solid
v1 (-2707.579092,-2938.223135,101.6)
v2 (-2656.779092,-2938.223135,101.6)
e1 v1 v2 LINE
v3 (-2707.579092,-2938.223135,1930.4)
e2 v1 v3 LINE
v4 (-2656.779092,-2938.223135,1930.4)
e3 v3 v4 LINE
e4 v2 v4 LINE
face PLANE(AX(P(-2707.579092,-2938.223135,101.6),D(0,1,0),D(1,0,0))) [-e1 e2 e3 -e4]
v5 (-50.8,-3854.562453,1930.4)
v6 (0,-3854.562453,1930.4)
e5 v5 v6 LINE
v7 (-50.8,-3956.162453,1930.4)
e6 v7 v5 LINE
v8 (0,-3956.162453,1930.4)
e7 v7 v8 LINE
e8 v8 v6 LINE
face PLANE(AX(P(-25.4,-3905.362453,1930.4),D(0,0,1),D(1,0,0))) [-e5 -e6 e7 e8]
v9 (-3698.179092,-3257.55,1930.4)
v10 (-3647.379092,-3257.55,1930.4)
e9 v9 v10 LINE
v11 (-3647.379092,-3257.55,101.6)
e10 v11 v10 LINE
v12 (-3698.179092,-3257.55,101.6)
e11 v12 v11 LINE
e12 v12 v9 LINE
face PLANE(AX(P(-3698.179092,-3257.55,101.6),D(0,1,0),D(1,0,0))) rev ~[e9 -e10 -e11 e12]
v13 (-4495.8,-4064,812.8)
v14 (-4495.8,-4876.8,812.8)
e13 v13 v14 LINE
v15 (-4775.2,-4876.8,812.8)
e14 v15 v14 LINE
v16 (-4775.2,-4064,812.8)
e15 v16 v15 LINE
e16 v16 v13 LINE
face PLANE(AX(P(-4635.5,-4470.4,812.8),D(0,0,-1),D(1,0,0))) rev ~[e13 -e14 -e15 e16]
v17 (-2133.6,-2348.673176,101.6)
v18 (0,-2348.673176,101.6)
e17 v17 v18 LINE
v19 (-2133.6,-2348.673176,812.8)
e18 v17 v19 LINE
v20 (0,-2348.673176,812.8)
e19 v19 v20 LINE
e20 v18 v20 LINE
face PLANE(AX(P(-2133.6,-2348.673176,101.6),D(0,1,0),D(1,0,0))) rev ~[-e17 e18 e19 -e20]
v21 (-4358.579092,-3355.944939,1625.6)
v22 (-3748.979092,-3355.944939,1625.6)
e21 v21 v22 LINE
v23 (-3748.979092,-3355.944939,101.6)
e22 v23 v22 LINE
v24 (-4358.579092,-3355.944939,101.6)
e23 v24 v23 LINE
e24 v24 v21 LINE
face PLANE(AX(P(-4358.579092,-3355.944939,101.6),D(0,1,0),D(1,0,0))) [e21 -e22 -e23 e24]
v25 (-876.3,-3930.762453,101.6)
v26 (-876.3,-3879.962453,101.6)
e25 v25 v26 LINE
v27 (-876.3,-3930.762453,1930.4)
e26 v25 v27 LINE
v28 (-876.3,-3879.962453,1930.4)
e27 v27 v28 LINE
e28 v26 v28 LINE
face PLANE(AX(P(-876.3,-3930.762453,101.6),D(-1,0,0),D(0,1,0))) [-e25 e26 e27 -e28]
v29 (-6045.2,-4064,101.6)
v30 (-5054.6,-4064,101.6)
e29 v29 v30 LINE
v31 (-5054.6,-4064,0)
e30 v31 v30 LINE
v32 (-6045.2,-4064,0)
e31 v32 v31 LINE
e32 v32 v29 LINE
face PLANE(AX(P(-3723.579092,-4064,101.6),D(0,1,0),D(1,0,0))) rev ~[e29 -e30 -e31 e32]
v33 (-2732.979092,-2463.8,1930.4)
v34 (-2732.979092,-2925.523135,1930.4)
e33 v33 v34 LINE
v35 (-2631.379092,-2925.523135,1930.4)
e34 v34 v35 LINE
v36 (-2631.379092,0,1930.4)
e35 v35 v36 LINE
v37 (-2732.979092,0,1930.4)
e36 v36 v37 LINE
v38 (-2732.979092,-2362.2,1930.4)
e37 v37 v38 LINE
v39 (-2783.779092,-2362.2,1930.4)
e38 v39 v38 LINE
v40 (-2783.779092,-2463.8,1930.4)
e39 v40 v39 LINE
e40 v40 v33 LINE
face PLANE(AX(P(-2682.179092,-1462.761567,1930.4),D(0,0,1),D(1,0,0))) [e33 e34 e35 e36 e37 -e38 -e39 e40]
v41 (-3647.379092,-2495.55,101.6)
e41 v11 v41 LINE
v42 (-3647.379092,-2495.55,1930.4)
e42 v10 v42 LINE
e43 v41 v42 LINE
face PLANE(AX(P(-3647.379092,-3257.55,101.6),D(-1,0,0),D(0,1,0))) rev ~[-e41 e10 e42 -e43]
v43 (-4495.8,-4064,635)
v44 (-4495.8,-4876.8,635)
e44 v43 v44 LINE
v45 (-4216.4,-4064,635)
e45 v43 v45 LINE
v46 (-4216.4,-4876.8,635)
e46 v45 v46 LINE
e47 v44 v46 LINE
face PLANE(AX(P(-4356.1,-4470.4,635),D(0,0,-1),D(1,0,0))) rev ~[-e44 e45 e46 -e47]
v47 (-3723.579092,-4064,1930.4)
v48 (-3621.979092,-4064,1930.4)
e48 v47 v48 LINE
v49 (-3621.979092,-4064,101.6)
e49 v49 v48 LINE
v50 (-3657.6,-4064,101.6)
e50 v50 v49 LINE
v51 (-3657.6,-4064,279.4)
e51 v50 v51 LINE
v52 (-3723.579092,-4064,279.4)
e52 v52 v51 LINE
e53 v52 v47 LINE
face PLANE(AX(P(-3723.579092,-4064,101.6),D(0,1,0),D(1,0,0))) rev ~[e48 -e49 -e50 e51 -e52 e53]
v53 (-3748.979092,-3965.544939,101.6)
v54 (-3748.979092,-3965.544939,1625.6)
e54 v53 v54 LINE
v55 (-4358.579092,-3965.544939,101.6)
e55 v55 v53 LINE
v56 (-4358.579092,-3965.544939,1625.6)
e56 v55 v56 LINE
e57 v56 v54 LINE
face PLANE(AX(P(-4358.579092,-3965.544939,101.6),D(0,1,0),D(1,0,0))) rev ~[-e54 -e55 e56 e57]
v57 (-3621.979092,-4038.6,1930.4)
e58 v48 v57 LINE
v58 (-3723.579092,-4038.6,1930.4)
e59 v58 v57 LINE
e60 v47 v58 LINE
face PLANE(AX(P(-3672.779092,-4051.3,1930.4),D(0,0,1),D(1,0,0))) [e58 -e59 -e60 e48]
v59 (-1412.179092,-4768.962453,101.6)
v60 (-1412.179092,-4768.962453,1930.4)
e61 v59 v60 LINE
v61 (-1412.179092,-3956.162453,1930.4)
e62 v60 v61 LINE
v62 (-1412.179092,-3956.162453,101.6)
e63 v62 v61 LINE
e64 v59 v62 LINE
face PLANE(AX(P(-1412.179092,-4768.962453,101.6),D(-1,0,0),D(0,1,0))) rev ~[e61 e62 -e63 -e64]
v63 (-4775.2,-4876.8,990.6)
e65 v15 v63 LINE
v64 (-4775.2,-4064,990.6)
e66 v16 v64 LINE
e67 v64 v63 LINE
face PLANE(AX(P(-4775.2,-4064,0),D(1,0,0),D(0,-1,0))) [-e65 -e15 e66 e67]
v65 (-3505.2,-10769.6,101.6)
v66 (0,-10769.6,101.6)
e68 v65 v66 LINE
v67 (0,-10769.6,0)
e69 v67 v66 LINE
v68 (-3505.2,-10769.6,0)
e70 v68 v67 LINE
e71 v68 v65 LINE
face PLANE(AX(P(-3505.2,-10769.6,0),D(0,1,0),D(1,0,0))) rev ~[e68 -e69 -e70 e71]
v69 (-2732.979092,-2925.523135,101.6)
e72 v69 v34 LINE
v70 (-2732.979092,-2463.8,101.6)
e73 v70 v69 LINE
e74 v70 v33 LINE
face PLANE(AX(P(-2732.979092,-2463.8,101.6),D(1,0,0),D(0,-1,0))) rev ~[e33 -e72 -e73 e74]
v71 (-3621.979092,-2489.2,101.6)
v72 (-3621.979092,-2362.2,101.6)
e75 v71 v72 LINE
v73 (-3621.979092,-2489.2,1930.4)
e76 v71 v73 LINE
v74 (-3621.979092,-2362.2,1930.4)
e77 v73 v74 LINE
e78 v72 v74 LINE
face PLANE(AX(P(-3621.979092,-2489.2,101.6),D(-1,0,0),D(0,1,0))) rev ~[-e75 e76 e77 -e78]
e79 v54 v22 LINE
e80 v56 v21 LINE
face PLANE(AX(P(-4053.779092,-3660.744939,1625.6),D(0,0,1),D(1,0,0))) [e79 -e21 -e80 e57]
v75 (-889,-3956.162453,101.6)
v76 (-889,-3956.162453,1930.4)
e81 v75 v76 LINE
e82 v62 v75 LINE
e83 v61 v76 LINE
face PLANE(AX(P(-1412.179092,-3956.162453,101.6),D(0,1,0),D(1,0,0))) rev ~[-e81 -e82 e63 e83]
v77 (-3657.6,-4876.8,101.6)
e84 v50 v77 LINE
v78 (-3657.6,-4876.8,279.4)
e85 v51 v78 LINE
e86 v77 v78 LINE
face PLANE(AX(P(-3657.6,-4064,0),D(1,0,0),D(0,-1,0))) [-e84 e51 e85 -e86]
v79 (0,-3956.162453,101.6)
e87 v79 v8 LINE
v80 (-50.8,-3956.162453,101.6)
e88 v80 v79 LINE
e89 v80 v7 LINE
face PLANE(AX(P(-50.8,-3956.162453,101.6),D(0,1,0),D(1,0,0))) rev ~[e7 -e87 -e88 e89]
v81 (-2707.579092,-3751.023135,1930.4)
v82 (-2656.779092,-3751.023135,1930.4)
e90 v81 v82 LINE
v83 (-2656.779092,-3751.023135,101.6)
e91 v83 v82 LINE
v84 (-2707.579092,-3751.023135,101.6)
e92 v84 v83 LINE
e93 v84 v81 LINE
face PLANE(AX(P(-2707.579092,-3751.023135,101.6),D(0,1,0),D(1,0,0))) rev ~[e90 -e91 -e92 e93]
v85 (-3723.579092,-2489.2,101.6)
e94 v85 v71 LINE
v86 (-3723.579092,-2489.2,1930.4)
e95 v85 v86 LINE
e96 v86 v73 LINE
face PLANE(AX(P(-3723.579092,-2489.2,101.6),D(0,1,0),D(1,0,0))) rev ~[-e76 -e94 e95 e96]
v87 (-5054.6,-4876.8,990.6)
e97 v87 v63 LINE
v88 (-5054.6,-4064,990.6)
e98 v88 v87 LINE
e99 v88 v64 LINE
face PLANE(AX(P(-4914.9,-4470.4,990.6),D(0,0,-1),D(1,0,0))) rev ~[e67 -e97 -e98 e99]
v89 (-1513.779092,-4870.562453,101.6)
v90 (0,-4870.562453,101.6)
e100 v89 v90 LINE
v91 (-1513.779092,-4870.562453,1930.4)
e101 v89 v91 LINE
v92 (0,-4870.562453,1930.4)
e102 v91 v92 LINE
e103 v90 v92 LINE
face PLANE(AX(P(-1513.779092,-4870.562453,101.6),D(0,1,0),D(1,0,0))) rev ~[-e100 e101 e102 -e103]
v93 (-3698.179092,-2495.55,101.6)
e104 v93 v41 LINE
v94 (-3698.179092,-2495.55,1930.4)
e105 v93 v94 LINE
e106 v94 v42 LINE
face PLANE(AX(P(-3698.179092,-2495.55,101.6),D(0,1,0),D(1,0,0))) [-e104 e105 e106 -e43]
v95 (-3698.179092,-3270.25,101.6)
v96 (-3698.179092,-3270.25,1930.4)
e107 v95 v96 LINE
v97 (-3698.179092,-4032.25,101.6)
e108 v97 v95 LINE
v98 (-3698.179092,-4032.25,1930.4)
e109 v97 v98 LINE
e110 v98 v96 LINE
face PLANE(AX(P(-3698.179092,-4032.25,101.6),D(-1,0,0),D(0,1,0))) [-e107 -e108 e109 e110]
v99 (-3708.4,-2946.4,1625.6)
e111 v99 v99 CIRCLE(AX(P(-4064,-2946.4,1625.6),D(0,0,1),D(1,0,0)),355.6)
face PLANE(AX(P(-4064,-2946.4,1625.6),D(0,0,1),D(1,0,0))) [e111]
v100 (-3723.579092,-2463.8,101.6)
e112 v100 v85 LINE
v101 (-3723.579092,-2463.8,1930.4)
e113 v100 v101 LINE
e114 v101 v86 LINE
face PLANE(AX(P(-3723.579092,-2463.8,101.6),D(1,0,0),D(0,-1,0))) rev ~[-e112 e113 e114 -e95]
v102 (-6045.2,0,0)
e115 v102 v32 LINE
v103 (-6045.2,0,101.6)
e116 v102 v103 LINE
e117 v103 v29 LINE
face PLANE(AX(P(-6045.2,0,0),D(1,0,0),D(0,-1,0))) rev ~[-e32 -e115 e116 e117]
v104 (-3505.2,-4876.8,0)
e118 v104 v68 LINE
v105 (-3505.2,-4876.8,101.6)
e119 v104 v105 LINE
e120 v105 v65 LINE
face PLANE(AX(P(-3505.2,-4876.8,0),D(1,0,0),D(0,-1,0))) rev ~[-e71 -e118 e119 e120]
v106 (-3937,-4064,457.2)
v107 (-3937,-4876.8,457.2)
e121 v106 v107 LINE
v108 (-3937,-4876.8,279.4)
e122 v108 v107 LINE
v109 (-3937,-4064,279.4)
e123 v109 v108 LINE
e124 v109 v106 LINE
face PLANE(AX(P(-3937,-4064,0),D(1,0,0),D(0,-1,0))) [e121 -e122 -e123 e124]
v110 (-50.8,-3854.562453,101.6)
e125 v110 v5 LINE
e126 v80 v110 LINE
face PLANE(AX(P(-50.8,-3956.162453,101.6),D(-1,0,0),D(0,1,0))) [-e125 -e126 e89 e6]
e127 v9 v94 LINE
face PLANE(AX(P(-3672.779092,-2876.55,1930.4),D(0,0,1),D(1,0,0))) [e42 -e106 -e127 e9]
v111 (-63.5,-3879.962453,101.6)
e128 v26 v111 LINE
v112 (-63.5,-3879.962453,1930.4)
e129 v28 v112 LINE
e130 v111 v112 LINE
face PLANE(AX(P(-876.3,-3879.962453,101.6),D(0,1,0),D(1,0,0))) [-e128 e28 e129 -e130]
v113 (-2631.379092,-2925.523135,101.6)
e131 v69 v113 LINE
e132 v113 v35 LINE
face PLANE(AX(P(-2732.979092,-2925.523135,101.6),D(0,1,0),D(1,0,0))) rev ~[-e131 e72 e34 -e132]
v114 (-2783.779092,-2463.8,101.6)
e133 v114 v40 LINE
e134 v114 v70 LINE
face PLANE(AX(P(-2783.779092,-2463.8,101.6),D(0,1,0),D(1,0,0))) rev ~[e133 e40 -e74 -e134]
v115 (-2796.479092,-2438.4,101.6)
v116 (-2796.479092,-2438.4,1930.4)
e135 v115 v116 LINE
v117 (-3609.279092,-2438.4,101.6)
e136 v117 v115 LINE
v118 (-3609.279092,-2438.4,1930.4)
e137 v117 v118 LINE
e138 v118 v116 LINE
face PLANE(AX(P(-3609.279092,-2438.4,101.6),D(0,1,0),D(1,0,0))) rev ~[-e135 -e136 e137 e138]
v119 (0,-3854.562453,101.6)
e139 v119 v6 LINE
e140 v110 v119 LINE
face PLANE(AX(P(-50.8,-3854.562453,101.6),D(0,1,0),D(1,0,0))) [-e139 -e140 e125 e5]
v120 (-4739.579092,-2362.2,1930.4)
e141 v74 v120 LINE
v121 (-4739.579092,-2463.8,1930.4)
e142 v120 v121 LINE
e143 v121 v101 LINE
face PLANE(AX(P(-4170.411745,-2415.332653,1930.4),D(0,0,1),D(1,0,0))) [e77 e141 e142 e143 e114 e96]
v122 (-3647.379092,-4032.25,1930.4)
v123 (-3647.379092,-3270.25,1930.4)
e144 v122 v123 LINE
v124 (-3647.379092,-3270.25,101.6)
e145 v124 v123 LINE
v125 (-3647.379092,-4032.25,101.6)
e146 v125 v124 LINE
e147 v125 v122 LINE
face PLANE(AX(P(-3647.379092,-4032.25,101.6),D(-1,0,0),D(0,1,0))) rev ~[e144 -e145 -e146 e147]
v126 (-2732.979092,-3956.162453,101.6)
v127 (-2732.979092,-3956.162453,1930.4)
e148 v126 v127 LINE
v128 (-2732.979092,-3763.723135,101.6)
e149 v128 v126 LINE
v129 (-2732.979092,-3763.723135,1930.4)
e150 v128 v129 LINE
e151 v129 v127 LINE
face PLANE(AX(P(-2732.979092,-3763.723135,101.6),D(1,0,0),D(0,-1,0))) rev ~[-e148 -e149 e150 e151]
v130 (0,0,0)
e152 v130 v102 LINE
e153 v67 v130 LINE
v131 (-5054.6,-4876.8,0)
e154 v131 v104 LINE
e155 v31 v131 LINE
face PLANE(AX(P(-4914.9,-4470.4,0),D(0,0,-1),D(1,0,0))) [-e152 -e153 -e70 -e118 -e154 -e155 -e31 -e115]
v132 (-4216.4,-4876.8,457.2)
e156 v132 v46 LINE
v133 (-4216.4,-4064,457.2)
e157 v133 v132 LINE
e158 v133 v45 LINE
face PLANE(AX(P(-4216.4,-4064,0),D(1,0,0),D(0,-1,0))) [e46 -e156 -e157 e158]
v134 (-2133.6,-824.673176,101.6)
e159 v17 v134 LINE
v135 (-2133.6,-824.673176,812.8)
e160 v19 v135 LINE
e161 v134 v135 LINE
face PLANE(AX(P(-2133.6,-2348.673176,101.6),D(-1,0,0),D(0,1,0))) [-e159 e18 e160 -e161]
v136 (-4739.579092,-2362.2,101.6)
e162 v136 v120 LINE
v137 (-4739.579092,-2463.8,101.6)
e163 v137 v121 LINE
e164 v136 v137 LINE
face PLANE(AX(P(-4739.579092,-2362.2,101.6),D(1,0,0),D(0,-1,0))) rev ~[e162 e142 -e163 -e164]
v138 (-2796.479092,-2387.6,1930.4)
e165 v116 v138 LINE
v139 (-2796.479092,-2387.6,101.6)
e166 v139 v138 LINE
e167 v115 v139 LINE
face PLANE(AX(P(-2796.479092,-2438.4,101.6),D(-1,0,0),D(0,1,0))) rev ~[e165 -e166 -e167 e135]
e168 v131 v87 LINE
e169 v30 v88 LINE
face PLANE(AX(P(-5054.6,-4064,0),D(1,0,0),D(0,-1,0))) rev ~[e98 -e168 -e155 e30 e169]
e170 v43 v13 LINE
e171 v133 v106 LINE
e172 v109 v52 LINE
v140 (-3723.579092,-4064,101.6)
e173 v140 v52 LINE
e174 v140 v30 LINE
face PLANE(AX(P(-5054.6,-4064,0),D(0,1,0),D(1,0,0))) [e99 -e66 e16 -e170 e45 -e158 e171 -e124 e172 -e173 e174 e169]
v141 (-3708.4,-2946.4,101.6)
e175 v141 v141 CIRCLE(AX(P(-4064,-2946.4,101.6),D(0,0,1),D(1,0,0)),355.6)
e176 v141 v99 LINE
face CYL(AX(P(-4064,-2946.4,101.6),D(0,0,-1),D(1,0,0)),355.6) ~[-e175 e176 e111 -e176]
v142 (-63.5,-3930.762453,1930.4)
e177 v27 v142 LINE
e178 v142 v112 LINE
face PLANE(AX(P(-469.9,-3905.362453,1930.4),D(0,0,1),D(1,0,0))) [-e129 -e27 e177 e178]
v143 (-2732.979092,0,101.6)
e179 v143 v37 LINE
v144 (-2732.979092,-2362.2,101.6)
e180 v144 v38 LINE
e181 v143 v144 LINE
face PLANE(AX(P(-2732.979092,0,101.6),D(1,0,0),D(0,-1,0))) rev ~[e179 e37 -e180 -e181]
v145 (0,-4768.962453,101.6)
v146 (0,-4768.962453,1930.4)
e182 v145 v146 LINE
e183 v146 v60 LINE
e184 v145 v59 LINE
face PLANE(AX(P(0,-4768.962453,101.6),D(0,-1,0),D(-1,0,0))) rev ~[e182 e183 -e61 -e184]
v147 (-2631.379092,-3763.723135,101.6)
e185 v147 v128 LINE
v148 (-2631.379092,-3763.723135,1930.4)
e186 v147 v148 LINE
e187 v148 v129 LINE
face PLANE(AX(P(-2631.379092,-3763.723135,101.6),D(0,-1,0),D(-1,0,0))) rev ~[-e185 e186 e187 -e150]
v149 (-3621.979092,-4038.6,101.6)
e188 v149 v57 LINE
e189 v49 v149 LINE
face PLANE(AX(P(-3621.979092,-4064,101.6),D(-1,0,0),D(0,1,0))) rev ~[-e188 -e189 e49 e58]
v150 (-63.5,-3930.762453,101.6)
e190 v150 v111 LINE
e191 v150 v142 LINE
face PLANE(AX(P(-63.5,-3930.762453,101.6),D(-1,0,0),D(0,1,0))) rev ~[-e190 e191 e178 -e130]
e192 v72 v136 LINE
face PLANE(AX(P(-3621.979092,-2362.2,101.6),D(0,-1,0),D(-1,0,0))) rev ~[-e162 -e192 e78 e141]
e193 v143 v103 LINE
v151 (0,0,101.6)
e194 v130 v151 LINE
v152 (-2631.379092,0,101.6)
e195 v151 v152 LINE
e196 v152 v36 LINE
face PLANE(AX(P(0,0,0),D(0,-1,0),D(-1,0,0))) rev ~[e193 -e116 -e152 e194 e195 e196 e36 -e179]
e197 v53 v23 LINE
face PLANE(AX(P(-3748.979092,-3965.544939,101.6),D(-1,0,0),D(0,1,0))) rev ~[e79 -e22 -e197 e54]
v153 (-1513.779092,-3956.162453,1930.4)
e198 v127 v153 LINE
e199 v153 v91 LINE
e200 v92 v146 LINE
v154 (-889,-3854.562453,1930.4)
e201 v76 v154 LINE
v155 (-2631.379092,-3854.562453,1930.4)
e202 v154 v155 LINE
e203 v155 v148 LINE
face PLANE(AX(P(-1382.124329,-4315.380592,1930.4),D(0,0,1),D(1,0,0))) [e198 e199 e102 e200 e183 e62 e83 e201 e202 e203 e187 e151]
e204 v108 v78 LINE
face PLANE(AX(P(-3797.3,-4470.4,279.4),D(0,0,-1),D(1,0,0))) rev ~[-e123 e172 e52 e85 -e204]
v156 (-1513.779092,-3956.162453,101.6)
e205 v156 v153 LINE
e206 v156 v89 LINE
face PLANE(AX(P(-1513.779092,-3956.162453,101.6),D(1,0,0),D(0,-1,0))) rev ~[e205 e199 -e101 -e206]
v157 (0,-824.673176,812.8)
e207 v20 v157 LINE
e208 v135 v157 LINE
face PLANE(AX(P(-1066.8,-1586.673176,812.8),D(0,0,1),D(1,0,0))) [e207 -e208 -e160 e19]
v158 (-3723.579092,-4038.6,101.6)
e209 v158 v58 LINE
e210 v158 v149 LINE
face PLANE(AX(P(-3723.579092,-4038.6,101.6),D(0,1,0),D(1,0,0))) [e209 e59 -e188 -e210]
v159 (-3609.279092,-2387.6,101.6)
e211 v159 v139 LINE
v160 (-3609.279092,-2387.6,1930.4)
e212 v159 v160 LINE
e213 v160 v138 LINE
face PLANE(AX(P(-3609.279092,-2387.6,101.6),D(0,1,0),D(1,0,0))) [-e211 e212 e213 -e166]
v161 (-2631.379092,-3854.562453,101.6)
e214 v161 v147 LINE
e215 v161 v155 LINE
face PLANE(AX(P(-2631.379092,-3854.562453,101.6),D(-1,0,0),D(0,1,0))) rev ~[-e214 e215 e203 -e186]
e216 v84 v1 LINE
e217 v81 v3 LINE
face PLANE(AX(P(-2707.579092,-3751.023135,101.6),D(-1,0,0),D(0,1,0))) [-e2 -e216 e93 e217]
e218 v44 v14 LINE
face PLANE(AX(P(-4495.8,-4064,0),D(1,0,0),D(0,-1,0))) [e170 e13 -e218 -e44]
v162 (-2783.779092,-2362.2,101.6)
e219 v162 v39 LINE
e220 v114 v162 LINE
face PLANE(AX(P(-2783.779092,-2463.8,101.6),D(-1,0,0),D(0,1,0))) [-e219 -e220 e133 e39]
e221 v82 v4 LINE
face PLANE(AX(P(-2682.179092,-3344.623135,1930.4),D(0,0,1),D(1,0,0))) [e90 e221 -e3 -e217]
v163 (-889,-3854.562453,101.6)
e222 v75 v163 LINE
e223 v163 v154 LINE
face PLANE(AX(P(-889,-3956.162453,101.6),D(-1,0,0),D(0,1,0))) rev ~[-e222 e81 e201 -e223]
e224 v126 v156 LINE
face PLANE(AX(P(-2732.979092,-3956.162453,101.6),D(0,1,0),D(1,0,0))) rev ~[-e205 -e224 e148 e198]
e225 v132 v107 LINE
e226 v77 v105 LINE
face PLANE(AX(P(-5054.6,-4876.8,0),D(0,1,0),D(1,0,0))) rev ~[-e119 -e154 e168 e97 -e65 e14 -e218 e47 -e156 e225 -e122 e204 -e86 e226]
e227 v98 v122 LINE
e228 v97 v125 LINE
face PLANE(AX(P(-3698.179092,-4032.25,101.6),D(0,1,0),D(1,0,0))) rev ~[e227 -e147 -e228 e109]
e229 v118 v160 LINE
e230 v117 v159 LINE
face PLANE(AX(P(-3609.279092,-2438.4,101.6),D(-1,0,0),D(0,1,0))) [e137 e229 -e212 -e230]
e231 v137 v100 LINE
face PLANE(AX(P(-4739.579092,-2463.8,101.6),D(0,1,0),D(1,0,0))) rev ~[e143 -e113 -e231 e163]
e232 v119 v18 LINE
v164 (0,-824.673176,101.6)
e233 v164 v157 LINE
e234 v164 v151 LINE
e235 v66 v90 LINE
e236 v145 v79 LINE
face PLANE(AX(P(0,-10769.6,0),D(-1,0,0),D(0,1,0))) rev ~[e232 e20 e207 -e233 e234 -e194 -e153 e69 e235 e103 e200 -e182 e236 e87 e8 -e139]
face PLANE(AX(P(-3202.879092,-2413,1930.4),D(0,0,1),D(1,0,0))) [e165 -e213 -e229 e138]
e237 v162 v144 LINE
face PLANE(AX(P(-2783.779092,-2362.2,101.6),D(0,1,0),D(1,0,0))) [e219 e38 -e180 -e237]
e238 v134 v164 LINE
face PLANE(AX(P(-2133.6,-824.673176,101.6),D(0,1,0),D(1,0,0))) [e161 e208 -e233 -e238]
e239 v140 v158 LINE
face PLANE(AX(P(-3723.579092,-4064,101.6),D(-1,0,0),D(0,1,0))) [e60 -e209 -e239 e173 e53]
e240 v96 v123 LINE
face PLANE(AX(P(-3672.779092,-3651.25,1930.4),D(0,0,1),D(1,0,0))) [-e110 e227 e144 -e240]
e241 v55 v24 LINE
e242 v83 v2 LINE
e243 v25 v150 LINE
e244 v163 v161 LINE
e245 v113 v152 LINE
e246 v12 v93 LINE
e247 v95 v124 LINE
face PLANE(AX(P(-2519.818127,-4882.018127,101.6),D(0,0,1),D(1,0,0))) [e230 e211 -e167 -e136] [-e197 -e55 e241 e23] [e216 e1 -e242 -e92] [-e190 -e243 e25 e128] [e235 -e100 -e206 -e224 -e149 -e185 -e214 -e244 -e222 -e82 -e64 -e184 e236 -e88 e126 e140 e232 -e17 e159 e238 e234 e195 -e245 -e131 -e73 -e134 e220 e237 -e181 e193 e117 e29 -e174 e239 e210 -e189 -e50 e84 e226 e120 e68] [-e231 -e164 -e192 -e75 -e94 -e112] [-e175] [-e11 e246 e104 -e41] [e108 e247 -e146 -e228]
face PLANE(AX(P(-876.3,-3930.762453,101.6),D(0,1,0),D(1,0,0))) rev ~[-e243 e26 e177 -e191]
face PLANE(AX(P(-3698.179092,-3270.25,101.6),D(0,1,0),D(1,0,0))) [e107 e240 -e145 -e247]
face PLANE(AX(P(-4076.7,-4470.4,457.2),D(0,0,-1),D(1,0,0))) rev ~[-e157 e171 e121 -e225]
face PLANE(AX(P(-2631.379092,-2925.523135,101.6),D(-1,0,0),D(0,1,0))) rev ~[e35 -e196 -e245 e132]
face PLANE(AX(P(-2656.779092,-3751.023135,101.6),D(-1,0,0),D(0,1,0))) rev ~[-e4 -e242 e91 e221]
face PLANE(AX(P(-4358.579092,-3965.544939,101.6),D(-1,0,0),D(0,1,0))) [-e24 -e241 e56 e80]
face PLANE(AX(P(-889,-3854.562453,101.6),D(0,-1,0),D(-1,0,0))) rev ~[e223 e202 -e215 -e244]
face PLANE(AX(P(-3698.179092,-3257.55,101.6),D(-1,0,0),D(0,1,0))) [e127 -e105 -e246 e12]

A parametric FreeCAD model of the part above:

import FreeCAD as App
import Part
import Sketcher

V = App.Vector
Q = App.Units.Quantity

doc = App.newDocument("Part")
body = doc.addObject("PartDesign::Body", "Body")

sketch1 = body.newObject("Sketcher::SketchObject", "Sketch")
sketch1.AttachmentSupport = (doc.getObject("XY_Plane"), [""])
sketch1.MapMode = "FlatFace"
sketch1.addGeometry(Part.LineSegment(V(0, 0, 0), V(-6045, 0, 0)), False)
sketch1.addGeometry(Part.LineSegment(V(-6045, 0, 0), V(-6045, -4064, 0)), False)
sketch1.addGeometry(Part.LineSegment(V(-6045, -4064, 0), V(-3658, -4064, 0)), False)
sketch1.addGeometry(Part.LineSegment(V(-3658, -4064, 0), V(-3658, -4877, 0)), False)
sketch1.addGeometry(Part.LineSegment(V(-3658, -4877, 0), V(-3505, -4877, 0)), False)
sketch1.addGeometry(Part.LineSegment(V(-3505, -4877, 0), V(-3505, -10770, 0)), False)
sketch1.addGeometry(Part.LineSegment(V(-3505, -10770, 0), V(0, -10770, 0)), False)
sketch1.addGeometry(Part.LineSegment(V(0, -10770, 0), V(0, 0, 0)), False)
sketch1.addConstraint(Sketcher.Constraint("Coincident", 0, 2, 1, 1))
sketch1.addConstraint(Sketcher.Constraint("Coincident", 1, 2, 2, 1))
sketch1.addConstraint(Sketcher.Constraint("Coincident", 2, 2, 3, 1))
sketch1.addConstraint(Sketcher.Constraint("Coincident", 3, 2, 4, 1))
sketch1.addConstraint(Sketcher.Constraint("Coincident", 4, 2, 5, 1))
sketch1.addConstraint(Sketcher.Constraint("Coincident", 5, 2, 6, 1))
sketch1.addConstraint(Sketcher.Constraint("Coincident", 6, 2, 7, 1))
sketch1.addConstraint(Sketcher.Constraint("Coincident", 7, 2, 0, 1))
sketch1.addConstraint(Sketcher.Constraint("Horizontal", 0))
sketch1.addConstraint(Sketcher.Constraint("Vertical", 1))
sketch1.addConstraint(Sketcher.Constraint("Horizontal", 2))
sketch1.addConstraint(Sketcher.Constraint("Vertical", 3))
sketch1.addConstraint(Sketcher.Constraint("Horizontal", 4))
sketch1.addConstraint(Sketcher.Constraint("Vertical", 5))
sketch1.addConstraint(Sketcher.Constraint("Horizontal", 6))
sketch1.addConstraint(Sketcher.Constraint("Vertical", 7))
sketch1.addConstraint(Sketcher.Constraint("Coincident", 7, 2, -1, 1))
sketch1.addConstraint(Sketcher.Constraint("DistanceX", 0, 2, 0, 1, Q("238 in")))
sketch1.addConstraint(Sketcher.Constraint("DistanceX", 2, 1, 2, 2, Q("94 in")))
sketch1.addConstraint(Sketcher.Constraint("DistanceX", 4, 1, 4, 2, Q("6 in")))
sketch1.addConstraint(Sketcher.Constraint("DistanceY", 1, 2, 1, 1, Q("160 in")))
sketch1.addConstraint(Sketcher.Constraint("DistanceY", 3, 2, 3, 1, Q("32 in")))
sketch1.addConstraint(Sketcher.Constraint("DistanceY", 5, 2, 5, 1, Q("232 in")))
pad1 = body.newObject("PartDesign::Pad", "Pad")
pad1.Profile = sketch1
pad1.Length = Q("4 in")

sketch2 = body.newObject("Sketcher::SketchObject", "Sketch001")
sketch2.AttachmentSupport = (doc.getObject("XY_Plane"), [""])
sketch2.MapMode = "FlatFace"
sketch2.AttachmentOffset = App.Placement(V(0, 0, 4 * 25.4), App.Rotation())
sketch2.addGeometry(Part.Circle(V(-4064, -2946, 0), V(0, 0, 1), 356), False)
sketch2.addGeometry(Part.LineSegment(V(-4359, -3356, 0), V(-4359, -3966, 0)), False)
sketch2.addGeometry(Part.LineSegment(V(-4359, -3966, 0), V(-3749, -3966, 0)), False)
sketch2.addGeometry(Part.LineSegment(V(-3749, -3966, 0), V(-3749, -3356, 0)), False)
sketch2.addGeometry(Part.LineSegment(V(-3749, -3356, 0), V(-4359, -3356, 0)), False)
sketch2.addConstraint(Sketcher.Constraint("Coincident", 1, 2, 2, 1))
sketch2.addConstraint(Sketcher.Constraint("Coincident", 2, 2, 3, 1))
sketch2.addConstraint(Sketcher.Constraint("Coincident", 3, 2, 4, 1))
sketch2.addConstraint(Sketcher.Constraint("Coincident", 4, 2, 1, 1))
sketch2.addConstraint(Sketcher.Constraint("Vertical", 1))
sketch2.addConstraint(Sketcher.Constraint("Horizontal", 2))
sketch2.addConstraint(Sketcher.Constraint("Vertical", 3))
sketch2.addConstraint(Sketcher.Constraint("Horizontal", 4))
sketch2.addConstraint(Sketcher.Constraint("Equal", 4, 1))
sketch2.addConstraint(Sketcher.Constraint("Diameter", 0, Q("28 in")))
sketch2.addConstraint(Sketcher.Constraint("DistanceX", 2, 1, 2, 2, Q("24 in")))
sketch2.addConstraint(Sketcher.Constraint("DistanceX", 0, 3, -1, 1, Q("160 in")))
sketch2.addConstraint(Sketcher.Constraint("DistanceY", 0, 3, -1, 1, Q("116 in")))
sketch2.addConstraint(Sketcher.Constraint("DistanceX", 1, 2, -1, 1, Q("4358.579092 mm")))
sketch2.addConstraint(Sketcher.Constraint("DistanceY", 1, 2, -1, 1, Q("3965.544939 mm")))
pad2 = body.newObject("PartDesign::Pad", "Pad001")
pad2.Profile = sketch2
pad2.Length = Q("60 in")

sketch3 = body.newObject("Sketcher::SketchObject", "Sketch002")
sketch3.AttachmentSupport = (doc.getObject("XY_Plane"), [""])
sketch3.MapMode = "FlatFace"
sketch3.AttachmentOffset = App.Placement(V(0, 0, 4 * 25.4), App.Rotation())
sketch3.addGeometry(Part.LineSegment(V(-3724, -4039, 0), V(-3724, -4064, 0)), False)
sketch3.addGeometry(Part.LineSegment(V(-3724, -4064, 0), V(-3622, -4064, 0)), False)
sketch3.addGeometry(Part.LineSegment(V(-3622, -4064, 0), V(-3622, -4039, 0)), False)
sketch3.addGeometry(Part.LineSegment(V(-3622, -4039, 0), V(-3724, -4039, 0)), False)
sketch3.addGeometry(Part.LineSegment(V(-3698, -3270, 0), V(-3698, -4032, 0)), False)
sketch3.addGeometry(Part.LineSegment(V(-3698, -4032, 0), V(-3647, -4032, 0)), False)
sketch3.addGeometry(Part.LineSegment(V(-3647, -4032, 0), V(-3647, -3270, 0)), False)
sketch3.addGeometry(Part.LineSegment(V(-3647, -3270, 0), V(-3698, -3270, 0)), False)
sketch3.addGeometry(Part.LineSegment(V(-3698, -2496, 0), V(-3698, -3258, 0)), False)
sketch3.addGeometry(Part.LineSegment(V(-3698, -3258, 0), V(-3647, -3258, 0)), False)
sketch3.addGeometry(Part.LineSegment(V(-3647, -3258, 0), V(-3647, -2496, 0)), False)
sketch3.addGeometry(Part.LineSegment(V(-3647, -2496, 0), V(-3698, -2496, 0)), False)
sketch3.addGeometry(Part.LineSegment(V(-3724, -2464, 0), V(-3724, -2489, 0)), False)
sketch3.addGeometry(Part.LineSegment(V(-3724, -2489, 0), V(-3622, -2489, 0)), False)
sketch3.addGeometry(Part.LineSegment(V(-3622, -2489, 0), V(-3622, -2362, 0)), False)
sketch3.addGeometry(Part.LineSegment(V(-3622, -2362, 0), V(-4740, -2362, 0)), False)
sketch3.addGeometry(Part.LineSegment(V(-4740, -2362, 0), V(-4740, -2464, 0)), False)
sketch3.addGeometry(Part.LineSegment(V(-4740, -2464, 0), V(-3724, -2464, 0)), False)
sketch3.addGeometry(Part.LineSegment(V(-2631, -2926, 0), V(-2631, 0, 0)), False)
sketch3.addGeometry(Part.LineSegment(V(-2631, 0, 0), V(-2733, 0, 0)), False)
sketch3.addGeometry(Part.LineSegment(V(-2733, 0, 0), V(-2733, -2362, 0)), False)
sketch3.addGeometry(Part.LineSegment(V(-2733, -2362, 0), V(-2784, -2362, 0)), False)
sketch3.addGeometry(Part.LineSegment(V(-2784, -2362, 0), V(-2784, -2464, 0)), False)
sketch3.addGeometry(Part.LineSegment(V(-2784, -2464, 0), V(-2733, -2464, 0)), False)
sketch3.addGeometry(Part.LineSegment(V(-2733, -2464, 0), V(-2733, -2926, 0)), False)
sketch3.addGeometry(Part.LineSegment(V(-2733, -2926, 0), V(-2631, -2926, 0)), False)
sketch3.addGeometry(Part.LineSegment(V(-889, -3855, 0), V(-2631, -3855, 0)), False)
sketch3.addGeometry(Part.LineSegment(V(-2631, -3855, 0), V(-2631, -3764, 0)), False)
sketch3.addGeometry(Part.LineSegment(V(-2631, -3764, 0), V(-2733, -3764, 0)), False)
sketch3.addGeometry(Part.LineSegment(V(-2733, -3764, 0), V(-2733, -3956, 0)), False)
sketch3.addGeometry(Part.LineSegment(V(-2733, -3956, 0), V(-1514, -3956, 0)), False)
sketch3.addGeometry(Part.LineSegment(V(-1514, -3956, 0), V(-1514, -4871, 0)), False)
sketch3.addGeometry(Part.LineSegment(V(-1514, -4871, 0), V(0, -4871, 0)), False)
sketch3.addGeometry(Part.LineSegment(V(0, -4871, 0), V(0, -4769, 0)), False)
sketch3.addGeometry(Part.LineSegment(V(0, -4769, 0), V(-1412, -4769, 0)), False)
sketch3.addGeometry(Part.LineSegment(V(-1412, -4769, 0), V(-1412, -3956, 0)), False)
sketch3.addGeometry(Part.LineSegment(V(-1412, -3956, 0), V(-889, -3956, 0)), False)
sketch3.addGeometry(Part.LineSegment(V(-889, -3956, 0), V(-889, -3855, 0)), False)
sketch3.addGeometry(Part.LineSegment(V(-51, -3855, 0), V(-51, -3956, 0)), False)
sketch3.addGeometry(Part.LineSegment(V(-51, -3956, 0), V(0, -3956, 0)), False)
sketch3.addGeometry(Part.LineSegment(V(0, -3956, 0), V(0, -3855, 0)), False)
sketch3.addGeometry(Part.LineSegment(V(0, -3855, 0), V(-51, -3855, 0)), False)
sketch3.addGeometry(Part.LineSegment(V(-3609, -2388, 0), V(-3609, -2438, 0)), False)
sketch3.addGeometry(Part.LineSegment(V(-3609, -2438, 0), V(-2796, -2438, 0)), False)
sketch3.addGeometry(Part.LineSegment(V(-2796, -2438, 0), V(-2796, -2388, 0)), False)
sketch3.addGeometry(Part.LineSegment(V(-2796, -2388, 0), V(-3609, -2388, 0)), False)
sketch3.addGeometry(Part.LineSegment(V(-2708, -2938, 0), V(-2708, -3751, 0)), False)
sketch3.addGeometry(Part.LineSegment(V(-2708, -3751, 0), V(-2657, -3751, 0)), False)
sketch3.addGeometry(Part.LineSegment(V(-2657, -3751, 0), V(-2657, -2938, 0)), False)
sketch3.addGeometry(Part.LineSegment(V(-2657, -2938, 0), V(-2708, -2938, 0)), False)
sketch3.addGeometry(Part.LineSegment(V(-876, -3880, 0), V(-876, -3931, 0)), False)
sketch3.addGeometry(Part.LineSegment(V(-876, -3931, 0), V(-64, -3931, 0)), False)
sketch3.addGeometry(Part.LineSegment(V(-64, -3931, 0), V(-64, -3880, 0)), False)
sketch3.addGeometry(Part.LineSegment(V(-64, -3880, 0), V(-876, -3880, 0)), False)
sketch3.addConstraint(Sketcher.Constraint("Coincident", 0, 2, 1, 1))
sketch3.addConstraint(Sketcher.Constraint("Coincident", 1, 2, 2, 1))
sketch3.addConstraint(Sketcher.Constraint("Coincident", 2, 2, 3, 1))
sketch3.addConstraint(Sketcher.Constraint("Coincident", 3, 2, 0, 1))
sketch3.addConstraint(Sketcher.Constraint("Coincident", 4, 2, 5, 1))
sketch3.addConstraint(Sketcher.Constraint("Coincident", 5, 2, 6, 1))
sketch3.addConstraint(Sketcher.Constraint("Coincident", 6, 2, 7, 1))
sketch3.addConstraint(Sketcher.Constraint("Coincident", 7, 2, 4, 1))
sketch3.addConstraint(Sketcher.Constraint("Coincident", 8, 2, 9, 1))
sketch3.addConstraint(Sketcher.Constraint("Coincident", 9, 2, 10, 1))
sketch3.addConstraint(Sketcher.Constraint("Coincident", 10, 2, 11, 1))
sketch3.addConstraint(Sketcher.Constraint("Coincident", 11, 2, 8, 1))
sketch3.addConstraint(Sketcher.Constraint("Coincident", 12, 2, 13, 1))
sketch3.addConstraint(Sketcher.Constraint("Coincident", 13, 2, 14, 1))
sketch3.addConstraint(Sketcher.Constraint("Coincident", 14, 2, 15, 1))
sketch3.addConstraint(Sketcher.Constraint("Coincident", 15, 2, 16, 1))
sketch3.addConstraint(Sketcher.Constraint("Coincident", 16, 2, 17, 1))
sketch3.addConstraint(Sketcher.Constraint("Coincident", 17, 2, 12, 1))
sketch3.addConstraint(Sketcher.Constraint("Coincident", 18, 2, 19, 1))
sketch3.addConstraint(Sketcher.Constraint("Coincident", 19, 2, 20, 1))
sketch3.addConstraint(Sketcher.Constraint("Coincident", 20, 2, 21, 1))
sketch3.addConstraint(Sketcher.Constraint("Coincident", 21, 2, 22, 1))
sketch3.addConstraint(Sketcher.Constraint("Coincident", 22, 2, 23, 1))
sketch3.addConstraint(Sketcher.Constraint("Coincident", 23, 2, 24, 1))
sketch3.addConstraint(Sketcher.Constraint("Coincident", 24, 2, 25, 1))
sketch3.addConstraint(Sketcher.Constraint("Coincident", 25, 2, 18, 1))
sketch3.addConstraint(Sketcher.Constraint("Coincident", 26, 2, 27, 1))
sketch3.addConstraint(Sketcher.Constraint("Coincident", 27, 2, 28, 1))
sketch3.addConstraint(Sketcher.Constraint("Coincident", 28, 2, 29, 1))
sketch3.addConstraint(Sketcher.Constraint("Coincident", 29, 2, 30, 1))
sketch3.addConstraint(Sketcher.Constraint("Coincident", 30, 2, 31, 1))
sketch3.addConstraint(Sketcher.Constraint("Coincident", 31, 2, 32, 1))
sketch3.addConstraint(Sketcher.Constraint("Coincident", 32, 2, 33, 1))
sketch3.addConstraint(Sketcher.Constraint("Coincident", 33, 2, 34, 1))
sketch3.addConstraint(Sketcher.Constraint("Coincident", 34, 2, 35, 1))
sketch3.addConstraint(Sketcher.Constraint("Coincident", 35, 2, 36, 1))
sketch3.addConstraint(Sketcher.Constraint("Coincident", 36, 2, 37, 1))
sketch3.addConstraint(Sketcher.Constraint("Coincident", 37, 2, 26, 1))
sketch3.addConstraint(Sketcher.Constraint("Coincident", 38, 2, 39, 1))
sketch3.addConstraint(Sketcher.Constraint("Coincident", 39, 2, 40, 1))
sketch3.addConstraint(Sketcher.Constraint("Coincident", 40, 2, 41, 1))
sketch3.addConstraint(Sketcher.Constraint("Coincident", 41, 2, 38, 1))
sketch3.addConstraint(Sketcher.Constraint("Coincident", 42, 2, 43, 1))
sketch3.addConstraint(Sketcher.Constraint("Coincident", 43, 2, 44, 1))
sketch3.addConstraint(Sketcher.Constraint("Coincident", 44, 2, 45, 1))
sketch3.addConstraint(Sketcher.Constraint("Coincident", 45, 2, 42, 1))
sketch3.addConstraint(Sketcher.Constraint("Coincident", 46, 2, 47, 1))
sketch3.addConstraint(Sketcher.Constraint("Coincident", 47, 2, 48, 1))
sketch3.addConstraint(Sketcher.Constraint("Coincident", 48, 2, 49, 1))
sketch3.addConstraint(Sketcher.Constraint("Coincident", 49, 2, 46, 1))
sketch3.addConstraint(Sketcher.Constraint("Coincident", 50, 2, 51, 1))
sketch3.addConstraint(Sketcher.Constraint("Coincident", 51, 2, 52, 1))
sketch3.addConstraint(Sketcher.Constraint("Coincident", 52, 2, 53, 1))
sketch3.addConstraint(Sketcher.Constraint("Coincident", 53, 2, 50, 1))
sketch3.addConstraint(Sketcher.Constraint("Vertical", 0))
sketch3.addConstraint(Sketcher.Constraint("Horizontal", 1))
sketch3.addConstraint(Sketcher.Constraint("Vertical", 2))
sketch3.addConstraint(Sketcher.Constraint("Horizontal", 3))
sketch3.addConstraint(Sketcher.Constraint("Vertical", 4))
sketch3.addConstraint(Sketcher.Constraint("Horizontal", 5))
sketch3.addConstraint(Sketcher.Constraint("Vertical", 6))
sketch3.addConstraint(Sketcher.Constraint("Horizontal", 7))
sketch3.addConstraint(Sketcher.Constraint("Vertical", 8))
sketch3.addConstraint(Sketcher.Constraint("Horizontal", 9))
sketch3.addConstraint(Sketcher.Constraint("Vertical", 10))
sketch3.addConstraint(Sketcher.Constraint("Horizontal", 11))
sketch3.addConstraint(Sketcher.Constraint("Vertical", 12))
sketch3.addConstraint(Sketcher.Constraint("Horizontal", 13))
sketch3.addConstraint(Sketcher.Constraint("Vertical", 14))
sketch3.addConstraint(Sketcher.Constraint("Horizontal", 15))
sketch3.addConstraint(Sketcher.Constraint("Vertical", 16))
sketch3.addConstraint(Sketcher.Constraint("Horizontal", 17))
sketch3.addConstraint(Sketcher.Constraint("Vertical", 18))
sketch3.addConstraint(Sketcher.Constraint("Horizontal", 19))
sketch3.addConstraint(Sketcher.Constraint("Vertical", 20))
sketch3.addConstraint(Sketcher.Constraint("Horizontal", 21))
sketch3.addConstraint(Sketcher.Constraint("Vertical", 22))
sketch3.addConstraint(Sketcher.Constraint("Horizontal", 23))
sketch3.addConstraint(Sketcher.Constraint("Vertical", 24))
sketch3.addConstraint(Sketcher.Constraint("Horizontal", 25))
sketch3.addConstraint(Sketcher.Constraint("Horizontal", 26))
sketch3.addConstraint(Sketcher.Constraint("Vertical", 27))
sketch3.addConstraint(Sketcher.Constraint("Horizontal", 28))
sketch3.addConstraint(Sketcher.Constraint("Vertical", 29))
sketch3.addConstraint(Sketcher.Constraint("Horizontal", 30))
sketch3.addConstraint(Sketcher.Constraint("Vertical", 31))
sketch3.addConstraint(Sketcher.Constraint("Horizontal", 32))
sketch3.addConstraint(Sketcher.Constraint("Vertical", 33))
sketch3.addConstraint(Sketcher.Constraint("Horizontal", 34))
sketch3.addConstraint(Sketcher.Constraint("Vertical", 35))
sketch3.addConstraint(Sketcher.Constraint("Horizontal", 36))
sketch3.addConstraint(Sketcher.Constraint("Vertical", 37))
sketch3.addConstraint(Sketcher.Constraint("Vertical", 38))
sketch3.addConstraint(Sketcher.Constraint("Horizontal", 39))
sketch3.addConstraint(Sketcher.Constraint("Vertical", 40))
sketch3.addConstraint(Sketcher.Constraint("Horizontal", 41))
sketch3.addConstraint(Sketcher.Constraint("Vertical", 42))
sketch3.addConstraint(Sketcher.Constraint("Horizontal", 43))
sketch3.addConstraint(Sketcher.Constraint("Vertical", 44))
sketch3.addConstraint(Sketcher.Constraint("Horizontal", 45))
sketch3.addConstraint(Sketcher.Constraint("Vertical", 46))
sketch3.addConstraint(Sketcher.Constraint("Horizontal", 47))
sketch3.addConstraint(Sketcher.Constraint("Vertical", 48))
sketch3.addConstraint(Sketcher.Constraint("Horizontal", 49))
sketch3.addConstraint(Sketcher.Constraint("Vertical", 50))
sketch3.addConstraint(Sketcher.Constraint("Horizontal", 51))
sketch3.addConstraint(Sketcher.Constraint("Vertical", 52))
sketch3.addConstraint(Sketcher.Constraint("Horizontal", 53))
sketch3.addConstraint(Sketcher.Constraint("PointOnObject", 18, 2, -1))
sketch3.addConstraint(Sketcher.Constraint("PointOnObject", 32, 2, -2))
sketch3.addConstraint(Sketcher.Constraint("PointOnObject", 39, 2, -2))
sketch3.addConstraint(Sketcher.Constraint("Horizontal", 15, 2, 20, 2))
sketch3.addConstraint(Sketcher.Constraint("Horizontal", 17, 2, 22, 2))
sketch3.addConstraint(Sketcher.Constraint("Horizontal", 30, 2, 35, 2))
sketch3.addConstraint(Sketcher.Constraint("Horizontal", 36, 2, 38, 2))
sketch3.addConstraint(Sketcher.Constraint("Horizontal", 37, 2, 40, 2))
sketch3.addConstraint(Sketcher.Constraint("Vertical", 7, 2, 8, 2))
sketch3.addConstraint(Sketcher.Constraint("Vertical", 6, 2, 9, 2))
sketch3.addConstraint(Sketcher.Constraint("Vertical", 3, 2, 12, 2))
sketch3.addConstraint(Sketcher.Constraint("Vertical", 2, 2, 13, 2))
sketch3.addConstraint(Sketcher.Constraint("Vertical", 20, 2, 23, 2))
sketch3.addConstraint(Sketcher.Constraint("Vertical", 25, 2, 26, 2))
sketch3.addConstraint(Sketcher.Constraint("Vertical", 24, 2, 28, 2))
sketch3.addConstraint(Sketcher.Constraint("Equal", 13, 19))
sketch3.addConstraint(Sketcher.Constraint("Equal", 11, 21))
sketch3.addConstraint(Sketcher.Constraint("Equal", 23, 39))
sketch3.addConstraint(Sketcher.Constraint("Equal", 41, 47))
sketch3.addConstraint(Sketcher.Constraint("Equal", 45, 51))
sketch3.addConstraint(Sketcher.Constraint("Equal", 6, 8))
sketch3.addConstraint(Sketcher.Constraint("Equal", 2, 12))
sketch3.addConstraint(Sketcher.Constraint("Equal", 28, 16))
sketch3.addConstraint(Sketcher.Constraint("Equal", 22, 33))
sketch3.addConstraint(Sketcher.Constraint("Equal", 53, 35))
sketch3.addConstraint(Sketcher.Constraint("Equal", 33, 37))
sketch3.addConstraint(Sketcher.Constraint("Equal", 49, 42))
sketch3.addConstraint(Sketcher.Constraint("Equal", 35, 46))
sketch3.addConstraint(Sketcher.Constraint("Equal", 44, 50))
sketch3.addConstraint(Sketcher.Constraint("DistanceX", 1, 1, 1, 2, Q("4 in")))
sketch3.addConstraint(Sketcher.Constraint("DistanceX", 5, 1, 5, 2, Q("2 in")))
sketch3.addConstraint(Sketcher.Constraint("DistanceX", 15, 2, 15, 1, Q("44 in")))
sketch3.addConstraint(Sketcher.Constraint("DistanceX", 30, 1, 30, 2, Q("48 in")))
sketch3.addConstraint(Sketcher.Constraint("DistanceX", 43, 1, 43, 2, Q("32 in")))
sketch3.addConstraint(Sketcher.Constraint("DistanceY", 0, 2, 0, 1, Q("1 in")))
sketch3.addConstraint(Sketcher.Constraint("DistanceY", 4, 2, 4, 1, Q("30 in")))
sketch3.addConstraint(Sketcher.Constraint("DistanceY", 20, 2, 20, 1, Q("93 in")))
sketch3.addConstraint(Sketcher.Constraint("DistanceY", 0, 2, -1, 1, Q("160 in")))
sketch3.addConstraint(Sketcher.Constraint("DistanceX", 36, 2, -1, 1, Q("35 in")))
sketch3.addConstraint(Sketcher.Constraint("DistanceY", 42, 2, -1, 1, Q("96 in")))
sketch3.addConstraint(Sketcher.Constraint("DistanceX", 3, 2, 4, 2, Q("1 in")))
sketch3.addConstraint(Sketcher.Constraint("DistanceX", 14, 2, 18, 2, Q("39 in")))
sketch3.addConstraint(Sketcher.Constraint("DistanceY", 27, 2, 25, 2, Q("33 in")))
sketch3.addConstraint(Sketcher.Constraint("DistanceX", 31, 2, 34, 2, Q("4 in")))
sketch3.addConstraint(Sketcher.Constraint("DistanceX", 28, 2, 46, 2, Q("1 in")))
sketch3.addConstraint(Sketcher.Constraint("DistanceY", 36, 2, 50, 2, Q("1 in")))
sketch3.addConstraint(Sketcher.Constraint("DistanceX", 50, 2, -1, 1, Q("34.5 in")))
sketch3.addConstraint(Sketcher.Constraint("DistanceY", 7, 2, 8, 2, Q("0.5 in")))
sketch3.addConstraint(Sketcher.Constraint("DistanceX", 13, 2, 42, 2, Q("0.5 in")))
sketch3.addConstraint(Sketcher.Constraint("DistanceY", 28, 2, 46, 2, Q("0.5 in")))
sketch3.addConstraint(Sketcher.Constraint("DistanceY", 4, 2, -1, 1, Q("158.75 in")))
sketch3.addConstraint(Sketcher.Constraint("DistanceX", 32, 1, 32, 2, Q("1513.779092 mm")))
sketch3.addConstraint(Sketcher.Constraint("DistanceY", 18, 1, 18, 2, Q("2925.523135 mm")))
sketch3.addConstraint(Sketcher.Constraint("DistanceY", 27, 1, 27, 2, Q("90.839318 mm")))
pad3 = body.newObject("PartDesign::Pad", "Pad002")
pad3.Profile = sketch3
pad3.Length = Q("72 in")

sketch4 = body.newObject("Sketcher::SketchObject", "Sketch003")
sketch4.AttachmentSupport = (doc.getObject("XY_Plane"), [""])
sketch4.MapMode = "FlatFace"
sketch4.addGeometry(Part.LineSegment(V(-3937, -4877, 0), V(-3937, -4064, 0)), False)
sketch4.addGeometry(Part.LineSegment(V(-3937, -4064, 0), V(-3658, -4064, 0)), False)
sketch4.addGeometry(Part.LineSegment(V(-3658, -4064, 0), V(-3658, -4877, 0)), False)
sketch4.addGeometry(Part.LineSegment(V(-3658, -4877, 0), V(-3937, -4877, 0)), False)
sketch4.addConstraint(Sketcher.Constraint("Coincident", 0, 2, 1, 1))
sketch4.addConstraint(Sketcher.Constraint("Coincident", 1, 2, 2, 1))
sketch4.addConstraint(Sketcher.Constraint("Coincident", 2, 2, 3, 1))
sketch4.addConstraint(Sketcher.Constraint("Coincident", 3, 2, 0, 1))
sketch4.addConstraint(Sketcher.Constraint("Vertical", 0))
sketch4.addConstraint(Sketcher.Constraint("Horizontal", 1))
sketch4.addConstraint(Sketcher.Constraint("Vertical", 2))
sketch4.addConstraint(Sketcher.Constraint("Horizontal", 3))
sketch4.addConstraint(Sketcher.Constraint("DistanceX", 1, 1, 1, 2, Q("11 in")))
sketch4.addConstraint(Sketcher.Constraint("DistanceY", 0, 1, 0, 2, Q("32 in")))
sketch4.addConstraint(Sketcher.Constraint("DistanceX", 0, 2, -1, 1, Q("155 in")))
sketch4.addConstraint(Sketcher.Constraint("DistanceY", 0, 2, -1, 1, Q("160 in")))
pad4 = body.newObject("PartDesign::Pad", "Pad003")
pad4.Profile = sketch4
pad4.Length = Q("11 in")

sketch5 = body.newObject("Sketcher::SketchObject", "Sketch004")
sketch5.AttachmentSupport = (doc.getObject("XY_Plane"), [""])
sketch5.MapMode = "FlatFace"
sketch5.addGeometry(Part.LineSegment(V(-4216, -4877, 0), V(-4216, -4064, 0)), False)
sketch5.addGeometry(Part.LineSegment(V(-4216, -4064, 0), V(-3937, -4064, 0)), False)
sketch5.addGeometry(Part.LineSegment(V(-3937, -4064, 0), V(-3937, -4877, 0)), False)
sketch5.addGeometry(Part.LineSegment(V(-3937, -4877, 0), V(-4216, -4877, 0)), False)
sketch5.addConstraint(Sketcher.Constraint("Coincident", 0, 2, 1, 1))
sketch5.addConstraint(Sketcher.Constraint("Coincident", 1, 2, 2, 1))
sketch5.addConstraint(Sketcher.Constraint("Coincident", 2, 2, 3, 1))
sketch5.addConstraint(Sketcher.Constraint("Coincident", 3, 2, 0, 1))
sketch5.addConstraint(Sketcher.Constraint("Vertical", 0))
sketch5.addConstraint(Sketcher.Constraint("Horizontal", 1))
sketch5.addConstraint(Sketcher.Constraint("Vertical", 2))
sketch5.addConstraint(Sketcher.Constraint("Horizontal", 3))
sketch5.addConstraint(Sketcher.Constraint("DistanceX", 1, 1, 1, 2, Q("11 in")))
sketch5.addConstraint(Sketcher.Constraint("DistanceY", 0, 1, 0, 2, Q("32 in")))
sketch5.addConstraint(Sketcher.Constraint("DistanceX", 0, 2, -1, 1, Q("166 in")))
sketch5.addConstraint(Sketcher.Constraint("DistanceY", 0, 2, -1, 1, Q("160 in")))
pad5 = body.newObject("PartDesign::Pad", "Pad004")
pad5.Profile = sketch5
pad5.Length = Q("18 in")

sketch6 = body.newObject("Sketcher::SketchObject", "Sketch005")
sketch6.AttachmentSupport = (doc.getObject("XY_Plane"), [""])
sketch6.MapMode = "FlatFace"
sketch6.addGeometry(Part.LineSegment(V(-4496, -4877, 0), V(-4496, -4064, 0)), False)
sketch6.addGeometry(Part.LineSegment(V(-4496, -4064, 0), V(-4216, -4064, 0)), False)
sketch6.addGeometry(Part.LineSegment(V(-4216, -4064, 0), V(-4216, -4877, 0)), False)
sketch6.addGeometry(Part.LineSegment(V(-4216, -4877, 0), V(-4496, -4877, 0)), False)
sketch6.addConstraint(Sketcher.Constraint("Coincident", 0, 2, 1, 1))
sketch6.addConstraint(Sketcher.Constraint("Coincident", 1, 2, 2, 1))
sketch6.addConstraint(Sketcher.Constraint("Coincident", 2, 2, 3, 1))
sketch6.addConstraint(Sketcher.Constraint("Coincident", 3, 2, 0, 1))
sketch6.addConstraint(Sketcher.Constraint("Vertical", 0))
sketch6.addConstraint(Sketcher.Constraint("Horizontal", 1))
sketch6.addConstraint(Sketcher.Constraint("Vertical", 2))
sketch6.addConstraint(Sketcher.Constraint("Horizontal", 3))
sketch6.addConstraint(Sketcher.Constraint("DistanceX", 1, 1, 1, 2, Q("11 in")))
sketch6.addConstraint(Sketcher.Constraint("DistanceY", 0, 1, 0, 2, Q("32 in")))
sketch6.addConstraint(Sketcher.Constraint("DistanceX", 0, 2, -1, 1, Q("177 in")))
sketch6.addConstraint(Sketcher.Constraint("DistanceY", 0, 2, -1, 1, Q("160 in")))
pad6 = body.newObject("PartDesign::Pad", "Pad005")
pad6.Profile = sketch6
pad6.Length = Q("25 in")

sketch7 = body.newObject("Sketcher::SketchObject", "Sketch006")
sketch7.AttachmentSupport = (doc.getObject("XY_Plane"), [""])
sketch7.MapMode = "FlatFace"
sketch7.addGeometry(Part.LineSegment(V(-4775, -4877, 0), V(-4775, -4064, 0)), False)
sketch7.addGeometry(Part.LineSegment(V(-4775, -4064, 0), V(-4496, -4064, 0)), False)
sketch7.addGeometry(Part.LineSegment(V(-4496, -4064, 0), V(-4496, -4877, 0)), False)
sketch7.addGeometry(Part.LineSegment(V(-4496, -4877, 0), V(-4775, -4877, 0)), False)
sketch7.addConstraint(Sketcher.Constraint("Coincident", 0, 2, 1, 1))
sketch7.addConstraint(Sketcher.Constraint("Coincident", 1, 2, 2, 1))
sketch7.addConstraint(Sketcher.Constraint("Coincident", 2, 2, 3, 1))
sketch7.addConstraint(Sketcher.Constraint("Coincident", 3, 2, 0, 1))
sketch7.addConstraint(Sketcher.Constraint("Vertical", 0))
sketch7.addConstraint(Sketcher.Constraint("Horizontal", 1))
sketch7.addConstraint(Sketcher.Constraint("Vertical", 2))
sketch7.addConstraint(Sketcher.Constraint("Horizontal", 3))
sketch7.addConstraint(Sketcher.Constraint("DistanceX", 1, 1, 1, 2, Q("11 in")))
sketch7.addConstraint(Sketcher.Constraint("DistanceY", 0, 1, 0, 2, Q("32 in")))
sketch7.addConstraint(Sketcher.Constraint("DistanceX", 0, 2, -1, 1, Q("188 in")))
sketch7.addConstraint(Sketcher.Constraint("DistanceY", 0, 2, -1, 1, Q("160 in")))
pad7 = body.newObject("PartDesign::Pad", "Pad006")
pad7.Profile = sketch7
pad7.Length = Q("32 in")

sketch8 = body.newObject("Sketcher::SketchObject", "Sketch007")
sketch8.AttachmentSupport = (doc.getObject("XY_Plane"), [""])
sketch8.MapMode = "FlatFace"
sketch8.addGeometry(Part.LineSegment(V(-5055, -4877, 0), V(-5055, -4064, 0)), False)
sketch8.addGeometry(Part.LineSegment(V(-5055, -4064, 0), V(-4775, -4064, 0)), False)
sketch8.addGeometry(Part.LineSegment(V(-4775, -4064, 0), V(-4775, -4877, 0)), False)
sketch8.addGeometry(Part.LineSegment(V(-4775, -4877, 0), V(-5055, -4877, 0)), False)
sketch8.addConstraint(Sketcher.Constraint("Coincident", 0, 2, 1, 1))
sketch8.addConstraint(Sketcher.Constraint("Coincident", 1, 2, 2, 1))
sketch8.addConstraint(Sketcher.Constraint("Coincident", 2, 2, 3, 1))
sketch8.addConstraint(Sketcher.Constraint("Coincident", 3, 2, 0, 1))
sketch8.addConstraint(Sketcher.Constraint("Vertical", 0))
sketch8.addConstraint(Sketcher.Constraint("Horizontal", 1))
sketch8.addConstraint(Sketcher.Constraint("Vertical", 2))
sketch8.addConstraint(Sketcher.Constraint("Horizontal", 3))
sketch8.addConstraint(Sketcher.Constraint("DistanceX", 1, 1, 1, 2, Q("11 in")))
sketch8.addConstraint(Sketcher.Constraint("DistanceY", 0, 1, 0, 2, Q("32 in")))
sketch8.addConstraint(Sketcher.Constraint("DistanceX", 0, 2, -1, 1, Q("199 in")))
sketch8.addConstraint(Sketcher.Constraint("DistanceY", 0, 2, -1, 1, Q("160 in")))
pad8 = body.newObject("PartDesign::Pad", "Pad007")
pad8.Profile = sketch8
pad8.Length = Q("39 in")

sketch9 = body.newObject("Sketcher::SketchObject", "Sketch008")
sketch9.AttachmentSupport = (doc.getObject("XY_Plane"), [""])
sketch9.MapMode = "FlatFace"
sketch9.AttachmentOffset = App.Placement(V(0, 0, 4 * 25.4), App.Rotation())
sketch9.addGeometry(Part.LineSegment(V(-2134, -825, 0), V(-2134, -2349, 0)), False)
sketch9.addGeometry(Part.LineSegment(V(-2134, -2349, 0), V(0, -2349, 0)), False)
sketch9.addGeometry(Part.LineSegment(V(0, -2349, 0), V(0, -825, 0)), False)
sketch9.addGeometry(Part.LineSegment(V(0, -825, 0), V(-2134, -825, 0)), False)
sketch9.addConstraint(Sketcher.Constraint("Coincident", 0, 2, 1, 1))
sketch9.addConstraint(Sketcher.Constraint("Coincident", 1, 2, 2, 1))
sketch9.addConstraint(Sketcher.Constraint("Coincident", 2, 2, 3, 1))
sketch9.addConstraint(Sketcher.Constraint("Coincident", 3, 2, 0, 1))
sketch9.addConstraint(Sketcher.Constraint("Vertical", 0))
sketch9.addConstraint(Sketcher.Constraint("Horizontal", 1))
sketch9.addConstraint(Sketcher.Constraint("Vertical", 2))
sketch9.addConstraint(Sketcher.Constraint("Horizontal", 3))
sketch9.addConstraint(Sketcher.Constraint("PointOnObject", 1, 2, -2))
sketch9.addConstraint(Sketcher.Constraint("DistanceX", 1, 1, 1, 2, Q("84 in")))
sketch9.addConstraint(Sketcher.Constraint("DistanceY", 0, 2, 0, 1, Q("60 in")))
sketch9.addConstraint(Sketcher.Constraint("DistanceY", 0, 2, -1, 1, Q("2348.673176 mm")))
pad9 = body.newObject("PartDesign::Pad", "Pad008")
pad9.Profile = sketch9
pad9.Length = Q("28 in")

doc.recompute()
